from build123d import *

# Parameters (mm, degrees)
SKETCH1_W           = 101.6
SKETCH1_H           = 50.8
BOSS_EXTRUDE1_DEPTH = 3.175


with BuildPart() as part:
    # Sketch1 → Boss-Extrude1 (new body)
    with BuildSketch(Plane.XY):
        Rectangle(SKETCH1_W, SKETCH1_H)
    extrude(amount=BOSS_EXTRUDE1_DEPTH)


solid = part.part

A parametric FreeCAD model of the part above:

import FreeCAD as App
import Part
import Sketcher

V = App.Vector
Q = App.Units.Quantity


def add_polygon(sketch, points):
    """Adds a closed chain of lines whose ends are joined by coincident constraints."""
    first, n = sketch.GeometryCount, len(points)
    for a, b in zip(points, points[1:] + points[:1]):
        sketch.addGeometry(Part.LineSegment(App.Vector(*a, 0), App.Vector(*b, 0)), False)
    for i in range(n):
        sketch.addConstraint(Sketcher.Constraint("Coincident", first + i, 2, first + (i + 1) % n, 1))

doc = App.newDocument("Part")
body = doc.addObject("PartDesign::Body", "Body")

sketch1 = body.newObject("Sketcher::SketchObject", "Sketch")
sketch1.AttachmentSupport = (doc.getObject("XY_Plane"), [""])
sketch1.MapMode = "FlatFace"
add_polygon(sketch1, [(-51, 25), (-51, -25), (51, -25), (51, 25)])
sketch1.addConstraint([
    Sketcher.Constraint("Vertical", 0),
    Sketcher.Constraint("Horizontal", 1),
    Sketcher.Constraint("Vertical", 2),
    Sketcher.Constraint("Horizontal", 3),
    Sketcher.Constraint("Symmetric", 0, 2, 2, 2, -1, 1),
    Sketcher.Constraint("DistanceX", 1, 1, 1, 2, Q("4 in")),
    Sketcher.Constraint("DistanceY", 0, 2, 0, 1, Q("2 in")),
])
pad1 = body.newObject("PartDesign::Pad", "Pad")
pad1.Profile = sketch1
pad1.Length = Q("0.125 in")

doc.recompute()
